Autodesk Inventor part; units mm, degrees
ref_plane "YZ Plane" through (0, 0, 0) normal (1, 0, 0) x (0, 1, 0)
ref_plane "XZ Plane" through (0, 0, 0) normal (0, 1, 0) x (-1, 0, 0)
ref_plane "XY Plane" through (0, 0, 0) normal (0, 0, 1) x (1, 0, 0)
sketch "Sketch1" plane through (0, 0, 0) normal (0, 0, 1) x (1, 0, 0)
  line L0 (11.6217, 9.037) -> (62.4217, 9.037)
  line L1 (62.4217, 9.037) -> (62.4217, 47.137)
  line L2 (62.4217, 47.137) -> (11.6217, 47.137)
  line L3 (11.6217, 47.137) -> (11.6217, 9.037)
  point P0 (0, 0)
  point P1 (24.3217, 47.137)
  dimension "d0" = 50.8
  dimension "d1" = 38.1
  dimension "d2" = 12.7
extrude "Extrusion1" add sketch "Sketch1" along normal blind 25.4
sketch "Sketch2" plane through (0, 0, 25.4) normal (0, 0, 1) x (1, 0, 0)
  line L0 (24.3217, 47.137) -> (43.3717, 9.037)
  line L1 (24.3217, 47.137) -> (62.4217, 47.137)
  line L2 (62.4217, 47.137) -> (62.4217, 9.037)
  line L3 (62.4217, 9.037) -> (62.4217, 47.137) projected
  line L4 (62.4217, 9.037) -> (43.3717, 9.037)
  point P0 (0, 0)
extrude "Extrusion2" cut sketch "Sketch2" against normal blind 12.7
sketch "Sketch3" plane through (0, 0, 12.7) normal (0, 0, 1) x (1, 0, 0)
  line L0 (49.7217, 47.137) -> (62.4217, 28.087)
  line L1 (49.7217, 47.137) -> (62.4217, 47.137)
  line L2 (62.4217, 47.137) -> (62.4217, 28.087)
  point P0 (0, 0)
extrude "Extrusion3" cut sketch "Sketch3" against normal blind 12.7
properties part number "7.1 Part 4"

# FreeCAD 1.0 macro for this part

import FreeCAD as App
import Part
import Sketcher
from FreeCAD import Vector
Q = App.Units.Quantity

doc = App.newDocument("Part")
body = doc.addObject("PartDesign::Body", "Body")

sketch1 = body.newObject("Sketcher::SketchObject", "Sketch")
sketch1.AttachmentSupport = (doc.getObject("XY_Plane"), [""])
sketch1.MapMode = "FlatFace"
sketch1.addGeometry(Part.LineSegment(Vector(12, 47, 0), Vector(12, 9, 0)), False)
sketch1.addGeometry(Part.LineSegment(Vector(12, 9, 0), Vector(62, 9, 0)), False)
sketch1.addGeometry(Part.LineSegment(Vector(62, 9, 0), Vector(62, 47, 0)), False)
sketch1.addGeometry(Part.LineSegment(Vector(62, 47, 0), Vector(12, 47, 0)), False)
sketch1.addConstraint(Sketcher.Constraint("Coincident", 0, 2, 1, 1))
sketch1.addConstraint(Sketcher.Constraint("Coincident", 1, 2, 2, 1))
sketch1.addConstraint(Sketcher.Constraint("Coincident", 2, 2, 3, 1))
sketch1.addConstraint(Sketcher.Constraint("Coincident", 3, 2, 0, 1))
sketch1.addConstraint(Sketcher.Constraint("Vertical", 0))
sketch1.addConstraint(Sketcher.Constraint("Horizontal", 1))
sketch1.addConstraint(Sketcher.Constraint("Vertical", 2))
sketch1.addConstraint(Sketcher.Constraint("Horizontal", 3))
sketch1.addConstraint(Sketcher.Constraint("DistanceX", 1, 1, 1, 2, Q("2 in")))
sketch1.addConstraint(Sketcher.Constraint("DistanceY", 0, 2, 0, 1, Q("1.5 in")))
sketch1.addConstraint(Sketcher.Constraint("DistanceX", -1, 1, 0, 2, 11.6217))
sketch1.addConstraint(Sketcher.Constraint("DistanceY", -1, 1, 0, 2, 9.037))
pad1 = body.newObject("PartDesign::Pad", "Pad")
pad1.Profile = sketch1
pad1.Length = Q("1 in")

sketch2 = body.newObject("Sketcher::SketchObject", "Sketch001")
sketch2.AttachmentSupport = (doc.getObject("XY_Plane"), [""])
sketch2.MapMode = "FlatFace"
sketch2.AttachmentOffset = App.Placement(Vector(0, 0, 1 * 25.4), App.Rotation())
sketch2.addGeometry(Part.LineSegment(Vector(62, 47, 0), Vector(24, 47, 0)), False)
sketch2.addGeometry(Part.LineSegment(Vector(24, 47, 0), Vector(43, 9, 0)), False)
sketch2.addGeometry(Part.LineSegment(Vector(43, 9, 0), Vector(62, 9, 0)), False)
sketch2.addGeometry(Part.LineSegment(Vector(62, 9, 0), Vector(62, 47, 0)), False)
sketch2.addConstraint(Sketcher.Constraint("Coincident", 0, 2, 1, 1))
sketch2.addConstraint(Sketcher.Constraint("Coincident", 1, 2, 2, 1))
sketch2.addConstraint(Sketcher.Constraint("Coincident", 2, 2, 3, 1))
sketch2.addConstraint(Sketcher.Constraint("Coincident", 3, 2, 0, 1))
sketch2.addConstraint(Sketcher.Constraint("Horizontal", 0))
sketch2.addConstraint(Sketcher.Constraint("Horizontal", 2))
sketch2.addConstraint(Sketcher.Constraint("Vertical", 3))
sketch2.addConstraint(Sketcher.Constraint("Equal", 0, 3))
sketch2.addConstraint(Sketcher.Constraint("DistanceX", 0, 2, 0, 1, Q("1.5 in")))
sketch2.addConstraint(Sketcher.Constraint("DistanceX", 2, 1, 2, 2, Q("0.75 in")))
sketch2.addConstraint(Sketcher.Constraint("DistanceX", -1, 1, 0, 2, 24.3217))
sketch2.addConstraint(Sketcher.Constraint("DistanceY", -1, 1, 0, 2, 47.137))
pocket1 = body.newObject("PartDesign::Pocket", "Pocket")
pocket1.Profile = sketch2
pocket1.Length = Q("0.5 in")

sketch3 = body.newObject("Sketcher::SketchObject", "Sketch002")
sketch3.AttachmentSupport = (doc.getObject("XY_Plane"), [""])
sketch3.MapMode = "FlatFace"
sketch3.AttachmentOffset = App.Placement(Vector(0, 0, 0.5 * 25.4), App.Rotation())
sketch3.addGeometry(Part.LineSegment(Vector(62, 47, 0), Vector(50, 47, 0)), False)
sketch3.addGeometry(Part.LineSegment(Vector(50, 47, 0), Vector(62, 28, 0)), False)
sketch3.addGeometry(Part.LineSegment(Vector(62, 28, 0), Vector(62, 47, 0)), False)
sketch3.addConstraint(Sketcher.Constraint("Coincident", 0, 2, 1, 1))
sketch3.addConstraint(Sketcher.Constraint("Coincident", 1, 2, 2, 1))
sketch3.addConstraint(Sketcher.Constraint("Coincident", 2, 2, 0, 1))
sketch3.addConstraint(Sketcher.Constraint("Horizontal", 0))
sketch3.addConstraint(Sketcher.Constraint("Vertical", 2))
sketch3.addConstraint(Sketcher.Constraint("DistanceX", 0, 2, 0, 1, Q("0.5 in")))
sketch3.addConstraint(Sketcher.Constraint("DistanceY", 2, 1, 2, 2, Q("0.75 in")))
sketch3.addConstraint(Sketcher.Constraint("DistanceX", -1, 1, 0, 2, 49.7217))
sketch3.addConstraint(Sketcher.Constraint("DistanceY", -1, 1, 0, 2, 47.137))
pocket2 = body.newObject("PartDesign::Pocket", "Pocket001")
pocket2.Profile = sketch3
pocket2.Length = Q("0.5 in")

doc.recompute()
